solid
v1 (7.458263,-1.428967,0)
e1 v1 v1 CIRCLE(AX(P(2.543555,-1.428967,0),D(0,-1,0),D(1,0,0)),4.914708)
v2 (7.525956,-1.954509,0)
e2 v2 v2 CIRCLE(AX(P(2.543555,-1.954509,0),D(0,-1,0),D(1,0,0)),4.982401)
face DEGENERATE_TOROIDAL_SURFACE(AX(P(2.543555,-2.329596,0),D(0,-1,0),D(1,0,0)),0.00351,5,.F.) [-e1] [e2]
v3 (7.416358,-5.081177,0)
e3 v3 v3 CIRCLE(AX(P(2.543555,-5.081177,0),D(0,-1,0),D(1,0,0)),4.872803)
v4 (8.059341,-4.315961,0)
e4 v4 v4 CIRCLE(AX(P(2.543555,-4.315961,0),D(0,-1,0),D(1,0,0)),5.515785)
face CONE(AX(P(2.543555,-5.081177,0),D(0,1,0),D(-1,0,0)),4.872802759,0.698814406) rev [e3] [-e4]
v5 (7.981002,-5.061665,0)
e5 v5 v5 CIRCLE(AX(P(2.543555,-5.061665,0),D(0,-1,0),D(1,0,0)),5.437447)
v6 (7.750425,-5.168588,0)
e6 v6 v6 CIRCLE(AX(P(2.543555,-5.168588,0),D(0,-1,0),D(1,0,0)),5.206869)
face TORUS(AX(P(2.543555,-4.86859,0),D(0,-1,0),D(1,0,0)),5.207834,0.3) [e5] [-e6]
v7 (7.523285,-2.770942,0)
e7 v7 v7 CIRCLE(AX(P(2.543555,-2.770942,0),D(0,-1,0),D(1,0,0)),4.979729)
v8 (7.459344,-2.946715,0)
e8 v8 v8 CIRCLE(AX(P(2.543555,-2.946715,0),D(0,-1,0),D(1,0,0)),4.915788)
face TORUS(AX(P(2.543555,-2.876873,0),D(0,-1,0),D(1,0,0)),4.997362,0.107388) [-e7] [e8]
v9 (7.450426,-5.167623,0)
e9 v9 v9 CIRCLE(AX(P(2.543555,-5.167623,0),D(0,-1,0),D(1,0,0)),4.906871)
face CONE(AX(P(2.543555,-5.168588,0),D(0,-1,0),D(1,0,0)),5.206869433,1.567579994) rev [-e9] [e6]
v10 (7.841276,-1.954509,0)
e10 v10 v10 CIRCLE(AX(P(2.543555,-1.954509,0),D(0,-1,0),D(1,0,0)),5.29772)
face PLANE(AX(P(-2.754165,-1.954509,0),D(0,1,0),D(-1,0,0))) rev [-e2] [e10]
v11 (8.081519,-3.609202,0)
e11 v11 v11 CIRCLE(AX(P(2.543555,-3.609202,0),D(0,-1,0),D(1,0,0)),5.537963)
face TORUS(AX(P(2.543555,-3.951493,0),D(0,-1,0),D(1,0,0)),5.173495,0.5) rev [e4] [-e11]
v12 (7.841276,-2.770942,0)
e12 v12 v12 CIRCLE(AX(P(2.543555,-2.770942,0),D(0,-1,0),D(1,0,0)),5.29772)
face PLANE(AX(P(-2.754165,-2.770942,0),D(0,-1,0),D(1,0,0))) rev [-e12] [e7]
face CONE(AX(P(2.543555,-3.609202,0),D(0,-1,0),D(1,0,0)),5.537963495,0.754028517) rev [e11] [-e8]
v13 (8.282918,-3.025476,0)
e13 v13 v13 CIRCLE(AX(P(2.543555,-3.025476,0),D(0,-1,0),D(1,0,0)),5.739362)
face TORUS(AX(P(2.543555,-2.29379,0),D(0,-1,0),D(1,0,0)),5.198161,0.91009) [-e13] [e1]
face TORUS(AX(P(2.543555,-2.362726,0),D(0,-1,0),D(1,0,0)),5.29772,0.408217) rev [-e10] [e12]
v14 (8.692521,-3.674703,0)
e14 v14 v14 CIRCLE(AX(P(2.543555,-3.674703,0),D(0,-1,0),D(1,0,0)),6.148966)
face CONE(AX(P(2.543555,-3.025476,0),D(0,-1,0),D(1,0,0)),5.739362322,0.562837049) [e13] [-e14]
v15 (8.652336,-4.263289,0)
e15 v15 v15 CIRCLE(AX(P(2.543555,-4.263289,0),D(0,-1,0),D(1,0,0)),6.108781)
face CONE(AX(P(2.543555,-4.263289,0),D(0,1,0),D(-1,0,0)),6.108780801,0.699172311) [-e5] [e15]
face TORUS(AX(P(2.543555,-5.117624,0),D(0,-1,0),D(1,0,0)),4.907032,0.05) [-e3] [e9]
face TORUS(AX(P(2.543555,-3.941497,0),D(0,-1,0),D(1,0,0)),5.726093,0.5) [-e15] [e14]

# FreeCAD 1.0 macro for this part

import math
import FreeCAD as App
import Part
import Sketcher
from FreeCAD import Vector
Q = App.Units.Quantity

doc = App.newDocument("Part")
body = doc.addObject("PartDesign::Body", "Body")

# Sketch on XY plane
sketch1 = body.newObject("Sketcher::SketchObject", "Sketch")
sketch1.AttachmentSupport = (doc.getObject("XY_Plane"), [""])
sketch1.MapMode = "FlatFace"
sketch1.addGeometry([
    Part.LineSegment(Vector(-2.754165, -1.954509, 0), Vector(-2.438845, -1.954509, 0)),  # 0
    Part.ArcOfCircle(Part.Circle(Vector(2.547066, -2.329596, 0), Vector(0, 0, 1), 5), math.radians(169.622913), math.radians(175.697781)),  # 1
    Part.ArcOfCircle(Part.Circle(Vector(-2.654605, -2.29379, 0), Vector(0, 0, 1), 0.91009), math.radians(71.852993), math.radians(233.511003)),  # 2
    Part.LineSegment(Vector(-3.195807, -3.025476, 0), Vector(-3.60541, -3.674703, 0)),  # 3
    Part.ArcOfCircle(Part.Circle(Vector(-3.182538, -3.941497, 0), Vector(0, 0, 1), 0.5), math.radians(147.751813), math.radians(220.059622)),  # 4
    Part.LineSegment(Vector(-3.565225, -4.263289, 0), Vector(-2.893892, -5.061665, 0)),  # 5
    Part.ArcOfCircle(Part.Circle(Vector(-2.664279, -4.86859, 0), Vector(0, 0, 1), 0.3), math.radians(-139.940377), math.radians(-89.815718)),  # 6
    Part.LineSegment(Vector(-2.663314, -5.168588, 0), Vector(-2.363316, -5.167623, 0)),  # 7
    Part.ArcOfCircle(Part.Circle(Vector(-2.363476, -5.117624, 0), Vector(0, 0, 1), 0.05), math.radians(-89.815717), math.radians(46.797347)),  # 8
    Part.LineSegment(Vector(-2.329247, -5.081177, 0), Vector(-2.97223, -4.315961, 0)),  # 9
    Part.ArcOfCircle(Part.Circle(Vector(-2.62994, -3.951493, 0), Vector(0, 0, 1), 0.5), math.radians(136.797349), math.radians(226.797348)),  # 10
    Part.LineSegment(Vector(-2.994408, -3.609202, 0), Vector(-2.372233, -2.946715, 0)),  # 11
    Part.ArcOfCircle(Part.Circle(Vector(-2.453806, -2.876873, 0), Vector(0, 0, 1), 0.107388), math.radians(-40.569754), math.radians(80.549627)),  # 12
    Part.LineSegment(Vector(-2.436174, -2.770942, 0), Vector(-2.754165, -2.770942, 0)),  # 13
    Part.ArcOfCircle(Part.Circle(Vector(-2.754165, -2.362726, 0), Vector(0, 0, 1), 0.408217), math.radians(90), math.radians(270)),  # 14
], False)
sketch1.addGeometry(Part.LineSegment(Vector(2.543555, -5.168588, 0), Vector(2.543555, -1.428967, 0)), True)  # axis
sketch1.addConstraint([
    Sketcher.Constraint("Coincident", 0, 2, 1, 2),
    Sketcher.Constraint("Coincident", 1, 1, 2, 1),
    Sketcher.Constraint("Coincident", 2, 2, 3, 1),
    Sketcher.Constraint("Coincident", 3, 2, 4, 1),
    Sketcher.Constraint("Coincident", 4, 2, 5, 1),
    Sketcher.Constraint("Coincident", 5, 2, 6, 1),
    Sketcher.Constraint("Coincident", 6, 2, 7, 1),
    Sketcher.Constraint("Coincident", 7, 2, 8, 1),
    Sketcher.Constraint("Coincident", 8, 2, 9, 1),
    Sketcher.Constraint("Coincident", 9, 2, 10, 2),
    Sketcher.Constraint("Coincident", 10, 1, 11, 1),
    Sketcher.Constraint("Coincident", 11, 2, 12, 1),
    Sketcher.Constraint("Coincident", 12, 2, 13, 1),
    Sketcher.Constraint("Coincident", 13, 2, 14, 2),
    Sketcher.Constraint("Coincident", 14, 1, 0, 1),
    Sketcher.Constraint("Horizontal", 0),
    Sketcher.Constraint("Horizontal", 13),
    Sketcher.Constraint("Vertical", 15),
    Sketcher.Constraint("Radius", 1, Q("5 mm")),
    Sketcher.Constraint("Radius", 4, Q("0.5 mm")),
    Sketcher.Constraint("Radius", 6, Q("0.3 mm")),
    Sketcher.Constraint("Radius", 10, Q("0.5 mm")),
    Sketcher.Constraint("Radius", 8, Q("0.05 mm")),
    Sketcher.Constraint("Distance", 7, Q("0.3 mm")),
    Sketcher.Constraint("Radius", 2, Q("0.91009 mm")),
    Sketcher.Constraint("Radius", 12, Q("0.107388 mm")),
    Sketcher.Constraint("Radius", 14, Q("0.408217 mm")),
    Sketcher.Constraint("DistanceX", 2, 2, 12, 3, Q("0.742001 mm")),
    Sketcher.Constraint("DistanceX", 0, 1, 0, 2, Q("0.31532 mm")),
    Sketcher.Constraint("DistanceX", 13, 2, 13, 1, Q("0.317991 mm")),
    Sketcher.Constraint("DistanceY", 15, 1, 15, 2, Q("3.739621 mm")),
    Sketcher.Constraint("DistanceY", 4, 3, 1, 3, Q("1.611901 mm")),
    Sketcher.Constraint("DistanceY", 6, 3, 2, 3, Q("2.5748 mm")),
    Sketcher.Constraint("DistanceX", 4, 3, 10, 3, Q("0.552598 mm")),
    Sketcher.Constraint("DistanceX", 2, 3, 12, 3, Q("0.200799 mm")),
    Sketcher.Constraint("DistanceY", 6, 3, 4, 2, Q("0.605301 mm")),
    Sketcher.Constraint("DistanceY", 3, 2, 10, 1, Q("0.065501 mm")),
    Sketcher.Constraint("DistanceX", 2, 2, 10, 1, Q("0.201399 mm")),
    Sketcher.Constraint("DistanceX", 0, 2, 15, 2, Q("4.982401 mm")),
    Sketcher.Constraint("Distance", 3, Q("0.76764 mm")),
    Sketcher.Constraint("Distance", 9, Q("0.999491 mm")),
    Sketcher.Constraint("Distance", 11, Q("0.908841 mm")),
    Sketcher.Constraint("DistanceY", 2, 3, -1, 1, Q("2.29379 mm")),
    Sketcher.Constraint("DistanceX", 6, 3, -1, 1, Q("2.664279 mm")),
    Sketcher.Constraint("DistanceX", 10, 3, -1, 1, Q("2.62994 mm")),
    Sketcher.Constraint("DistanceY", 0, 2, -1, 1, Q("1.954509 mm")),
    Sketcher.Constraint("DistanceX", 3, 2, -1, 1, Q("3.60541 mm")),
    Sketcher.Constraint("DistanceX", 5, 2, -1, 1, Q("2.893892 mm")),
    Sketcher.Constraint("DistanceX", 9, 2, -1, 1, Q("2.97223 mm")),
    Sketcher.Constraint("DistanceY", 9, 2, -1, 1, Q("4.315961 mm")),
    Sketcher.Constraint("DistanceY", 15, 1, -1, 1, Q("5.168588 mm")),
    Sketcher.Constraint("DistanceX", 2, 3, 1, 3, Q("5.201671 mm")),
    Sketcher.Constraint("DistanceX", 4, 3, 8, 3, Q("0.819061 mm")),
    Sketcher.Constraint("DistanceY", 8, 3, 10, 3, Q("1.166131 mm")),
    Sketcher.Constraint("DistanceY", 10, 3, 12, 3, Q("1.07462 mm")),
    Sketcher.Constraint("DistanceX", 14, 3, 2, 3, Q("0.09956 mm")),
    Sketcher.Constraint("DistanceX", 4, 2, 6, 2, Q("0.901911 mm")),
])
revolution = body.newObject("PartDesign::Revolution", "Revolution")
revolution.Profile = sketch1
revolution.ReferenceAxis = (sketch1, ["Axis0"])
revolution.Angle = 360

doc.recompute()
